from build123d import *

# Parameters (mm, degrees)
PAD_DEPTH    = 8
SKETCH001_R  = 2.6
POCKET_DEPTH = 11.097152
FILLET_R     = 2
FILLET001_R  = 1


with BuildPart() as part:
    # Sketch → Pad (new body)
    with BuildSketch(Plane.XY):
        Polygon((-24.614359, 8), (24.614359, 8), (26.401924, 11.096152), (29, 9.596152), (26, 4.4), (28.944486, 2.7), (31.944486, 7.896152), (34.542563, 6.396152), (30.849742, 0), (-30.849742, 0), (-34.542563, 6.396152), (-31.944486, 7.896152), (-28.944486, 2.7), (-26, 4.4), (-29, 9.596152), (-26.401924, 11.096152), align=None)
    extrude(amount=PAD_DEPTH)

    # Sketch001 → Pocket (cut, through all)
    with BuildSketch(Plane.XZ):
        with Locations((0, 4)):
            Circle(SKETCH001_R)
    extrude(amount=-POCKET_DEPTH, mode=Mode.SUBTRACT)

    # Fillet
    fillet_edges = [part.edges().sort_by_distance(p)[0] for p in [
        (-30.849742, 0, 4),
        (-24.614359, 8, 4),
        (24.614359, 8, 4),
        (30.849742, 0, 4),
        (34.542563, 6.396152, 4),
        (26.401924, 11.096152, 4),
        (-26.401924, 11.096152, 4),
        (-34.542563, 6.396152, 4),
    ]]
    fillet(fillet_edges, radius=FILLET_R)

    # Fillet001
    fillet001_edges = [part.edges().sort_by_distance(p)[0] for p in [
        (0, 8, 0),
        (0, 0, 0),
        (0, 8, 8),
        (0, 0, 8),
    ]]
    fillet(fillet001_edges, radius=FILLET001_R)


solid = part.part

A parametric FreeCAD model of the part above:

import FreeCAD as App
import Part
import Sketcher

V = App.Vector
Q = App.Units.Quantity


def edges_at(feature, points):
    """Names of the edges that pass closest to the given points."""
    edges = feature.Shape.Edges
    near = lambda p: min(range(len(edges)), key=lambda i: edges[i].distToShape(Part.Vertex(*p))[0])
    return sorted({f"Edge{near(p) + 1}" for p in points})


def add_polygon(sketch, points):
    """Adds a closed chain of lines whose ends are joined by coincident constraints."""
    first, n = sketch.GeometryCount, len(points)
    for a, b in zip(points, points[1:] + points[:1]):
        sketch.addGeometry(Part.LineSegment(App.Vector(*a, 0), App.Vector(*b, 0)), False)
    for i in range(n):
        sketch.addConstraint(Sketcher.Constraint("Coincident", first + i, 2, first + (i + 1) % n, 1))

doc = App.newDocument("Part")
body = doc.addObject("PartDesign::Body", "Body")

# Sketch on XY plane
sketch1 = body.newObject("Sketcher::SketchObject", "Sketch")
sketch1.AttachmentSupport = (doc.getObject("XY_Plane"), [""])
sketch1.MapMode = "FlatFace"
add_polygon(sketch1, [(24.6, 8), (-24.6, 8), (-26.4, 11.1), (-29, 9.6), (-26, 4.4), (-28.9, 2.7), (-31.9, 7.9), (-34.5, 6.4), (-30.8, 0), (30.8, 0), (34.5, 6.4), (31.9, 7.9), (28.9, 2.7), (26, 4.4), (29, 9.6), (26.4, 11.1)])  # lines 0-15
sketch1.addConstraint(Sketcher.Constraint("Horizontal", 0))
sketch1.addConstraint(Sketcher.Constraint("Horizontal", 8))
sketch1.addConstraint(Sketcher.Constraint("Symmetric", 7, 2, 8, 2, -1, 1))
sketch1.addConstraint(Sketcher.Constraint("Symmetric", 6, 2, 9, 2, -2))
sketch1.addConstraint(Sketcher.Constraint("Symmetric", 5, 2, 10, 2, -2))
sketch1.addConstraint(Sketcher.Constraint("Symmetric", 4, 2, 11, 2, -2))
sketch1.addConstraint(Sketcher.Constraint("Symmetric", 3, 2, 12, 2, -2))
sketch1.addConstraint(Sketcher.Constraint("Symmetric", 2, 2, 13, 2, -2))
sketch1.addConstraint(Sketcher.Constraint("Symmetric", 1, 2, 14, 2, -2))
sketch1.addConstraint(Sketcher.Constraint("Perpendicular", 1, 2))
sketch1.addConstraint(Sketcher.Constraint("Perpendicular", 2, 3))
sketch1.addConstraint(Sketcher.Constraint("Perpendicular", 3, 4))
sketch1.addConstraint(Sketcher.Constraint("Perpendicular", 4, 5))
sketch1.addConstraint(Sketcher.Constraint("Perpendicular", 5, 6))
sketch1.addConstraint(Sketcher.Constraint("Perpendicular", 6, 7))
sketch1.addConstraint(Sketcher.Constraint("Perpendicular", 14, 15))
sketch1.addConstraint(Sketcher.Constraint("Equal", 3, 5))
sketch1.addConstraint(Sketcher.Constraint("Equal", 2, 6))
sketch1.addConstraint(Sketcher.Constraint("Angle", 1, Q("120.000011 deg")))
sketch1.addConstraint(Sketcher.Constraint("Distance", 2, 3.0))
sketch1.addConstraint(Sketcher.Constraint("Distance", 3, 6.0))
sketch1.addConstraint(Sketcher.Constraint("DistanceY", -1, 1, 0, 2, 8.0))
sketch1.addConstraint(Sketcher.Constraint("DistanceX", 2, 2, -1, 1, 29.0))
sketch1.addConstraint(Sketcher.Constraint("Distance", 4, 3.4))
sketch1.addConstraint(Sketcher.Constraint("DistanceY", -1, 1, 3, 2, 4.4))
pad1 = body.newObject("PartDesign::Pad", "Pad")
pad1.Profile = sketch1
pad1.Length = 8

# Sketch on XZ plane
sketch2 = body.newObject("Sketcher::SketchObject", "Sketch001")
sketch2.AttachmentSupport = (doc.getObject("XZ_Plane"), [""])
sketch2.MapMode = "FlatFace"
sketch2.addGeometry(Part.Circle(V(0, 4, 0), V(0, 0, 1), 2.6), False)
sketch2.addConstraint(Sketcher.Constraint("PointOnObject", 0, 3, -2))
sketch2.addConstraint(Sketcher.Constraint("Diameter", 0, 5.2))
sketch2.addConstraint(Sketcher.Constraint("DistanceY", -1, 1, 0, 3, 4.0))
pocket1 = body.newObject("PartDesign::Pocket", "Pocket")
pocket1.Profile = sketch2
pocket1.Type = "ThroughAll"
doc.recompute()

fillet = body.newObject("PartDesign::Fillet", "Fillet")
fillet.Base = (pocket1, edges_at(pocket1, [
    (-30.85, 0, 4),
    (-24.614, 8, 4),
    (24.614, 8, 4),
    (30.85, 0, 4),
    (34.543, 6.396, 4),
    (26.402, 11.096, 4),
    (-26.402, 11.096, 4),
    (-34.543, 6.396, 4),
]))
fillet.Radius = 2
doc.recompute()

fillet2 = body.newObject("PartDesign::Fillet", "Fillet001")
fillet2.Base = (fillet, edges_at(fillet, [
    (0, 8, 0),
    (0, 0, 0),
    (0, 8, 8),
    (0, 0, 8),
]))
fillet2.Radius = 1

doc.recompute()
